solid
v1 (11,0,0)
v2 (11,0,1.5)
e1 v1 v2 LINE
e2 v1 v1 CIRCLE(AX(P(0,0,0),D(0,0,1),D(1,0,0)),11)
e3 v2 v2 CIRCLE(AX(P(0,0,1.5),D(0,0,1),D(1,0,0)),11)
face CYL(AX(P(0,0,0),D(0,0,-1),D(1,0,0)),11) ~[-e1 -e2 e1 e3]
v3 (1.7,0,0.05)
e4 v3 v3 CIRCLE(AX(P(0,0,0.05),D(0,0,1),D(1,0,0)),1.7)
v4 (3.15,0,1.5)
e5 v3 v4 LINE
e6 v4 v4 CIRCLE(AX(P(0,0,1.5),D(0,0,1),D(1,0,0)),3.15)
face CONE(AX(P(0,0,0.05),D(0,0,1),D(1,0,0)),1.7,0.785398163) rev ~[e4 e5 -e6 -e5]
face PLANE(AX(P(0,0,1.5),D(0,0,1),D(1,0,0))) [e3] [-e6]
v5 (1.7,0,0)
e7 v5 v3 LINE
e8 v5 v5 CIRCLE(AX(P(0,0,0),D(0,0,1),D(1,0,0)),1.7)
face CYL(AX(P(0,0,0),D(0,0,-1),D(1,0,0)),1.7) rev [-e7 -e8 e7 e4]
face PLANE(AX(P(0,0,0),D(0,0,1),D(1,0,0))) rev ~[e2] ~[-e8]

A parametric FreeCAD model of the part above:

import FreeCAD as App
import Part
import Sketcher

V = App.Vector


def edges_at(feature, points):
    """Names of the edges that pass closest to the given points."""
    edges = feature.Shape.Edges
    near = lambda p: min(range(len(edges)), key=lambda i: edges[i].distToShape(Part.Vertex(*p))[0])
    return sorted({f"Edge{near(p) + 1}" for p in points})

doc = App.newDocument("Part")
body = doc.addObject("PartDesign::Body", "Body")

# Sketch on XY plane
sketch1 = body.newObject("Sketcher::SketchObject", "Sketch")
sketch1.AttachmentSupport = (doc.getObject("XY_Plane"), [""])
sketch1.MapMode = "FlatFace"
sketch1.addGeometry([
    Part.Circle(V(0, 0, 0), V(0, 0, 1), 11),
    Part.Circle(V(0, 0, 0), V(0, 0, 1), 1.7),
], False)
sketch1.addConstraint([
    Sketcher.Constraint("Coincident", 0, 3, -1, 1),
    Sketcher.Constraint("Coincident", 1, 3, -1, 1),
    Sketcher.Constraint("Diameter", 0, 22.0),
    Sketcher.Constraint("Diameter", 1, 3.4),
])
pad1 = body.newObject("PartDesign::Pad", "Pad")
pad1.Profile = sketch1
pad1.Length = 1.5
doc.recompute()

chamfer = body.newObject("PartDesign::Chamfer", "Chamfer")
chamfer.Base = (pad1, edges_at(pad1, [(-1.7, 0, 1.5)]))
chamfer.Size = 1.45

doc.recompute()
